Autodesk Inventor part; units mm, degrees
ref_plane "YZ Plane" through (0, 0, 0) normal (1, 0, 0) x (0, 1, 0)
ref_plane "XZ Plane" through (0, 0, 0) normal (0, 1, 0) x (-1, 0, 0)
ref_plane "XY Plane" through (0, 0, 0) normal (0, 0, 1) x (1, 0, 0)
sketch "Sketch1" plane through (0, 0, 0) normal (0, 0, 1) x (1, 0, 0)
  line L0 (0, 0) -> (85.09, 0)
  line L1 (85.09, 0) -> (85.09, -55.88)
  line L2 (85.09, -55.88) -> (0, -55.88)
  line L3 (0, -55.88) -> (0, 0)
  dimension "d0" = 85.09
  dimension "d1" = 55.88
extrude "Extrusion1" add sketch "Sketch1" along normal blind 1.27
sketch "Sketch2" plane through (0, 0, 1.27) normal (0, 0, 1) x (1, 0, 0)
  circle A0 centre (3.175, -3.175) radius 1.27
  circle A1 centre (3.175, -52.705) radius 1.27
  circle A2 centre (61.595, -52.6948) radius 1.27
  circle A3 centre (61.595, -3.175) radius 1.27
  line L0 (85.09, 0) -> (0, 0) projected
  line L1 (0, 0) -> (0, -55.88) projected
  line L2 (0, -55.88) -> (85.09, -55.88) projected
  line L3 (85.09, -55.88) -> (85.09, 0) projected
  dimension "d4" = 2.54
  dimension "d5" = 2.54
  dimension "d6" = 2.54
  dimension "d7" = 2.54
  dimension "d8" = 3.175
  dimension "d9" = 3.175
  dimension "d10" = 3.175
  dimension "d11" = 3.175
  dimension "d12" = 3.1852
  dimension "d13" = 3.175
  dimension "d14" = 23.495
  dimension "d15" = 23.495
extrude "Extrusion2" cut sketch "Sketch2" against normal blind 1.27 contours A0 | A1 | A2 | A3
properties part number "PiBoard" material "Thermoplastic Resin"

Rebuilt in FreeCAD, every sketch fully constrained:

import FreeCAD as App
import Part
import Sketcher
from FreeCAD import Vector
Q = App.Units.Quantity

doc = App.newDocument("Part")
params = doc.addObject("Spreadsheet::Sheet", "Params")
for row, (alias, value) in enumerate([
    ("sketch1_height", "2.2 in"),
    ("sketch1_width", "3.35 in"),
    ("pad1_length", "0.05 in"),
    ("sketch2_diameter", "0.1 in"),
    ("pocket1_length", "0.05 in"),
], start=1):
    params.set(f"A{row}", alias)
    params.set(f"B{row}", "=" + value)
    params.setAlias(f"B{row}", alias)

body = doc.addObject("PartDesign::Body", "Body")

# Sketch on XY plane
sketch1 = body.newObject("Sketcher::SketchObject", "Sketch")
sketch1.AttachmentSupport = (doc.getObject("XY_Plane"), [""])
sketch1.MapMode = "FlatFace"
sketch1.addGeometry([
    Part.LineSegment(Vector(85, 0, 0), Vector(0, 0, 0)),
    Part.LineSegment(Vector(0, 0, 0), Vector(0, -56, 0)),
    Part.LineSegment(Vector(0, -56, 0), Vector(85, -56, 0)),
    Part.LineSegment(Vector(85, -56, 0), Vector(85, 0, 0)),
], False)
sketch1.addConstraint([
    Sketcher.Constraint("Coincident", 0, 2, 1, 1),
    Sketcher.Constraint("Coincident", 1, 2, 2, 1),
    Sketcher.Constraint("Coincident", 2, 2, 3, 1),
    Sketcher.Constraint("Coincident", 3, 2, 0, 1),
    Sketcher.Constraint("Horizontal", 0),
    Sketcher.Constraint("Vertical", 1),
    Sketcher.Constraint("Horizontal", 2),
    Sketcher.Constraint("Vertical", 3),
    Sketcher.Constraint("Coincident", 0, 2, -1, 1),
    Sketcher.Constraint("DistanceY", 1, 2, 1, 1, Q("2.2 in")),
    Sketcher.Constraint("DistanceX", 0, 2, 0, 1, Q("3.35 in")),
])
sketch1.setExpression("Constraints[9]", "Params.sketch1_height")
sketch1.setExpression("Constraints[10]", "Params.sketch1_width")
pad1 = body.newObject("PartDesign::Pad", "Pad")
pad1.Profile = sketch1
pad1.setExpression("Length", "Params.pad1_length")

# Sketch on XY plane
sketch2 = body.newObject("Sketcher::SketchObject", "Sketch001")
sketch2.AttachmentSupport = (doc.getObject("XY_Plane"), [""])
sketch2.MapMode = "FlatFace"
sketch2.AttachmentOffset = App.Placement(Vector(0, 0, 0.05 * 25.4), App.Rotation())
sketch2.addGeometry([
    Part.Circle(Vector(3.2, -3.2, 0), Vector(0, 0, 1), 1.3),
    Part.Circle(Vector(3.2, -52.7, 0), Vector(0, 0, 1), 1.3),
    Part.Circle(Vector(61.6, -52.7, 0), Vector(0, 0, 1), 1.3),
    Part.Circle(Vector(61.6, -3.2, 0), Vector(0, 0, 1), 1.3),
], False)
sketch2.addConstraint([
    Sketcher.Constraint("Equal", 0, 1),
    Sketcher.Constraint("Equal", 1, 2),
    Sketcher.Constraint("Equal", 2, 3),
    Sketcher.Constraint("Horizontal", 0, 3, 3, 3),
    Sketcher.Constraint("Vertical", 0, 3, 1, 3),
    Sketcher.Constraint("Vertical", 2, 3, 3, 3),
    Sketcher.Constraint("Diameter", 0, Q("0.1 in")),
    Sketcher.Constraint("DistanceX", -1, 1, 0, 3, Q("0.125 in")),
    Sketcher.Constraint("DistanceY", 0, 3, -1, 1, Q("0.125 in")),
    Sketcher.Constraint("DistanceX", 1, 3, 2, 3, Q("2.3 in")),
    Sketcher.Constraint("DistanceY", 1, 3, 0, 3, Q("1.95 in")),
    Sketcher.Constraint("DistanceY", 2, 3, -1, 1, Q("2.0746 in")),
])
sketch2.setExpression("Constraints[6]", "Params.sketch2_diameter")
pocket1 = body.newObject("PartDesign::Pocket", "Pocket")
pocket1.Profile = sketch2
pocket1.setExpression("Length", "Params.pocket1_length")

doc.recompute()
